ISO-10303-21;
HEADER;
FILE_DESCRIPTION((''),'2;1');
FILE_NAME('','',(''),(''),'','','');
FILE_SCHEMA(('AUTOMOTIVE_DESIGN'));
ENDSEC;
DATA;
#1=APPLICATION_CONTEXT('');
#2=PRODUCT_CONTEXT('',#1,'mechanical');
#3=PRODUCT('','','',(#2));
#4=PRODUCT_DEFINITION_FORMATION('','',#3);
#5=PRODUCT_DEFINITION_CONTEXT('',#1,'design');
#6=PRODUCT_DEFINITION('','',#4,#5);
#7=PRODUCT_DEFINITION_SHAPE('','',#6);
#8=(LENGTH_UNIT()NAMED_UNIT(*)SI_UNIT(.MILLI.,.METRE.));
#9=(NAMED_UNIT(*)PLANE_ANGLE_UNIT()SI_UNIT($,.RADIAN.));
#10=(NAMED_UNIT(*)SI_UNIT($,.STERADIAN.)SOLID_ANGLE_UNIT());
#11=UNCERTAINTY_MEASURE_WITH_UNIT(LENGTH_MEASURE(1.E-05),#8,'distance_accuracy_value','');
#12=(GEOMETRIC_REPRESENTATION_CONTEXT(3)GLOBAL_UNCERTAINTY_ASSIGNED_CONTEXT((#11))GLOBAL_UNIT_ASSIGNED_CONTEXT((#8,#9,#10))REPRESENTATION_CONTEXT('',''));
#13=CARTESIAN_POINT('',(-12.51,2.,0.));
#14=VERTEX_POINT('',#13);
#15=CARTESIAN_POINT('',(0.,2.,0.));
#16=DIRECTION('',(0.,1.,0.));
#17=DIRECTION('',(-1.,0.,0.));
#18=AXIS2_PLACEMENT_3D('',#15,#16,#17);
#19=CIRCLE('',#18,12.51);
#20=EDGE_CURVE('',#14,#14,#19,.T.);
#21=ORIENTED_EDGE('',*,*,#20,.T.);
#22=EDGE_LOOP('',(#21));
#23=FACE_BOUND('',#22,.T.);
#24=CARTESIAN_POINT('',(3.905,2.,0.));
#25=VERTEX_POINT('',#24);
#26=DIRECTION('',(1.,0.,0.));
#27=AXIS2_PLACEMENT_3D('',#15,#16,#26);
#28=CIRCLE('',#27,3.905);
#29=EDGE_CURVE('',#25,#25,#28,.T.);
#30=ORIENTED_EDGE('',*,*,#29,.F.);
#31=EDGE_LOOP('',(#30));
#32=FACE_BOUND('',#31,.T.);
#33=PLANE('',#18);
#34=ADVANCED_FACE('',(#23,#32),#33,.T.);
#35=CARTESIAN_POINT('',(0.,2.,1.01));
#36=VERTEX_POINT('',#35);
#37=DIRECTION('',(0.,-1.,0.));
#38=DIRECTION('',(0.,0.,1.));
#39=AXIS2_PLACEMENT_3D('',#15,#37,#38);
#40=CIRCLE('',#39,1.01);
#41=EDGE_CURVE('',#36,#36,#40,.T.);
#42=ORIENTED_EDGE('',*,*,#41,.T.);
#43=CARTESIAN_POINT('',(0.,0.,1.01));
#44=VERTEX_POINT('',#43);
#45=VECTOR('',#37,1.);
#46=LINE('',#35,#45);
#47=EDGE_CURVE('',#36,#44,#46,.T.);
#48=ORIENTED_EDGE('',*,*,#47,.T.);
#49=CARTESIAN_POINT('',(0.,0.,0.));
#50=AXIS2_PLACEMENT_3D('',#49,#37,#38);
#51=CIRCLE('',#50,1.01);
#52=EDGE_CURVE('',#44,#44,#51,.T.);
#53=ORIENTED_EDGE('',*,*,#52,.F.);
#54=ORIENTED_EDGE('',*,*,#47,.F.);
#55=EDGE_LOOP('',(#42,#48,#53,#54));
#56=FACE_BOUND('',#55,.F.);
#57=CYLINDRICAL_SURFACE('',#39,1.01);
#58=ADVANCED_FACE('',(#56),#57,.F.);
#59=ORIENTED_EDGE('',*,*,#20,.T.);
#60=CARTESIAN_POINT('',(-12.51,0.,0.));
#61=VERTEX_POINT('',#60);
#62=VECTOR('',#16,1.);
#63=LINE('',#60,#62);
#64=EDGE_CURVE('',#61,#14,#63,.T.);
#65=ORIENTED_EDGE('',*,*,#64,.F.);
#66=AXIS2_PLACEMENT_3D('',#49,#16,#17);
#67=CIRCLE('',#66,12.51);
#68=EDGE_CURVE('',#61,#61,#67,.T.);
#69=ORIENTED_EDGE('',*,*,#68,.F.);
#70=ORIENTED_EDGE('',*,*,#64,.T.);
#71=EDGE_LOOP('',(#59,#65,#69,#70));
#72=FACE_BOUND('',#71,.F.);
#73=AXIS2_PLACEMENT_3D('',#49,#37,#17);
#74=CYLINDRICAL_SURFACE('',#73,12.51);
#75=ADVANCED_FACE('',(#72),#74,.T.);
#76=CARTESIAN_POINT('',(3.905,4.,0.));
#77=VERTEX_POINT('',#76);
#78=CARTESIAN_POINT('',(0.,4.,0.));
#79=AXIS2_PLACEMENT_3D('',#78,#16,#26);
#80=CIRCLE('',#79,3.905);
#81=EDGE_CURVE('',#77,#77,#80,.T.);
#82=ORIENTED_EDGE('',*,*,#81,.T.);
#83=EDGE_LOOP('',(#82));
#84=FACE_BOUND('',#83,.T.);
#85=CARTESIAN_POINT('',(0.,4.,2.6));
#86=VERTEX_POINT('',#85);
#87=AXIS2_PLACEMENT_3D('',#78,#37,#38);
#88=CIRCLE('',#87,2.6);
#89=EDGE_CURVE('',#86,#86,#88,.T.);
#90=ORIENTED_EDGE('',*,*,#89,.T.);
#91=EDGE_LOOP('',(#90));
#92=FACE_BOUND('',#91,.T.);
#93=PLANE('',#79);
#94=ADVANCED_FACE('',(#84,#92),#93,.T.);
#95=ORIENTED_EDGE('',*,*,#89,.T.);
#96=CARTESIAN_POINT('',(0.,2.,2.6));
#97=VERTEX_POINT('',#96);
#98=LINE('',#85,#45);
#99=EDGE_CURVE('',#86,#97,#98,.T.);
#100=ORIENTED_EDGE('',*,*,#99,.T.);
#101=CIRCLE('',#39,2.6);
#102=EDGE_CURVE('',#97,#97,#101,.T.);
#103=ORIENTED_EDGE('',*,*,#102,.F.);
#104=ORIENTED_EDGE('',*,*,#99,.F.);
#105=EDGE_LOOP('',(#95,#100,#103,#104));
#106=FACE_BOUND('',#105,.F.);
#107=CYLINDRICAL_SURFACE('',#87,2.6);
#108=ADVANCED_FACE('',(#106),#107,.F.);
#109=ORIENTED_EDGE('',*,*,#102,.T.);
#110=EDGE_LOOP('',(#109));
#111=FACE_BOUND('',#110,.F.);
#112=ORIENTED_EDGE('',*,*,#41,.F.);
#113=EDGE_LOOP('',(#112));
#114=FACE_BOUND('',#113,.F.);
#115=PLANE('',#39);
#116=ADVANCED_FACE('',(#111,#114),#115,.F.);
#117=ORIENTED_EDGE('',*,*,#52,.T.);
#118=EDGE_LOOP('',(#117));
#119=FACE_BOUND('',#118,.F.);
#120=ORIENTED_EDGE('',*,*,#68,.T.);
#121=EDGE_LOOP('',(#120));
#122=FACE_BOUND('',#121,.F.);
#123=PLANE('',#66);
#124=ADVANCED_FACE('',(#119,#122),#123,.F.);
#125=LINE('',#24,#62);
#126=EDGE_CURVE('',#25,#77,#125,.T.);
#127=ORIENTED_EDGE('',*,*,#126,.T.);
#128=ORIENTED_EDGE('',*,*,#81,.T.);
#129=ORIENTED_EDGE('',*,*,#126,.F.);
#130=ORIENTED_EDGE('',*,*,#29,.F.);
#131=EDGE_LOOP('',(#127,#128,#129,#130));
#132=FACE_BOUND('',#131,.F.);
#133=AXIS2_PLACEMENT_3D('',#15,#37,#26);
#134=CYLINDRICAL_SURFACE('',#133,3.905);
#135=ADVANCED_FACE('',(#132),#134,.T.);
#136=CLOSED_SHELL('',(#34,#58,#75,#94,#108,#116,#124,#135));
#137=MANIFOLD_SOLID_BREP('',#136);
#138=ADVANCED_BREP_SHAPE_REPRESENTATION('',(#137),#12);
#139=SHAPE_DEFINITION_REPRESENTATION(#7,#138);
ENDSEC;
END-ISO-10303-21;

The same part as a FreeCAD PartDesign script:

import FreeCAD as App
import Part
import Sketcher

doc = App.newDocument("Part")
body = doc.addObject("PartDesign::Body", "Body")

# Sketch on XZ plane
sketch1 = body.newObject("Sketcher::SketchObject", "Sketch")
sketch1.AttachmentSupport = (doc.getObject("XZ_Plane"), [""])
sketch1.MapMode = "FlatFace"
sketch1.addGeometry(Part.Circle(App.Vector(0, 0, 0), App.Vector(0, 0, 1), 12.51), False)
sketch1.addConstraint(Sketcher.Constraint("Coincident", 0, 3, -1, 1))
sketch1.addConstraint(Sketcher.Constraint("Diameter", 0, 25.02))
pad1 = body.newObject("PartDesign::Pad", "Pad")
pad1.Profile = sketch1
pad1.Length = 2
pad1.Reversed = True

# Sketch on XZ plane
sketch2 = body.newObject("Sketcher::SketchObject", "Sketch001")
sketch2.AttachmentSupport = (doc.getObject("XZ_Plane"), [""])
sketch2.MapMode = "FlatFace"
sketch2.AttachmentOffset = App.Placement(App.Vector(0, 0, -2), App.Rotation())
sketch2.addGeometry(Part.Circle(App.Vector(0, 0, 0), App.Vector(0, 0, 1), 3.905), False)
sketch2.addConstraint(Sketcher.Constraint("Coincident", 0, 3, -1, 1))
sketch2.addConstraint(Sketcher.Constraint("Diameter", 0, 7.81))
pad2 = body.newObject("PartDesign::Pad", "Pad001")
pad2.Profile = sketch2
pad2.Length = 2
pad2.Reversed = True

# Sketch on XZ plane
sketch3 = body.newObject("Sketcher::SketchObject", "Sketch002")
sketch3.AttachmentSupport = (doc.getObject("XZ_Plane"), [""])
sketch3.MapMode = "FlatFace"
sketch3.AttachmentOffset = App.Placement(App.Vector(0, 0, -4), App.Rotation())
sketch3.addGeometry(Part.Circle(App.Vector(0, 0, 0), App.Vector(0, 0, 1), 2.6), False)
sketch3.addConstraint(Sketcher.Constraint("Coincident", 0, 3, -1, 1))
sketch3.addConstraint(Sketcher.Constraint("Diameter", 0, 5.2))
doc.recompute()
hole = body.newObject("PartDesign::Hole", "Hole")
hole.Profile = sketch3
hole.ThreadType = "None"
hole.Diameter = 5.2
hole.DepthType = "Dimension"
hole.Depth = 2
hole.DrillPoint = "Flat"
hole.Reversed = True

# Sketch on XZ plane
sketch4 = body.newObject("Sketcher::SketchObject", "Sketch003")
sketch4.AttachmentSupport = (doc.getObject("XZ_Plane"), [""])
sketch4.MapMode = "FlatFace"
sketch4.AttachmentOffset = App.Placement(App.Vector(0, 0, -2), App.Rotation())
sketch4.addGeometry(Part.Circle(App.Vector(0, 0, 0), App.Vector(0, 0, 1), 1.01), False)
sketch4.addConstraint(Sketcher.Constraint("Coincident", 0, 3, -1, 1))
sketch4.addConstraint(Sketcher.Constraint("Diameter", 0, 2.02))
doc.recompute()
hole2 = body.newObject("PartDesign::Hole", "Hole001")
hole2.Profile = sketch4
hole2.ThreadType = "None"
hole2.Diameter = 2.02
hole2.DepthType = "ThroughAll"
hole2.Reversed = True

doc.recompute()
